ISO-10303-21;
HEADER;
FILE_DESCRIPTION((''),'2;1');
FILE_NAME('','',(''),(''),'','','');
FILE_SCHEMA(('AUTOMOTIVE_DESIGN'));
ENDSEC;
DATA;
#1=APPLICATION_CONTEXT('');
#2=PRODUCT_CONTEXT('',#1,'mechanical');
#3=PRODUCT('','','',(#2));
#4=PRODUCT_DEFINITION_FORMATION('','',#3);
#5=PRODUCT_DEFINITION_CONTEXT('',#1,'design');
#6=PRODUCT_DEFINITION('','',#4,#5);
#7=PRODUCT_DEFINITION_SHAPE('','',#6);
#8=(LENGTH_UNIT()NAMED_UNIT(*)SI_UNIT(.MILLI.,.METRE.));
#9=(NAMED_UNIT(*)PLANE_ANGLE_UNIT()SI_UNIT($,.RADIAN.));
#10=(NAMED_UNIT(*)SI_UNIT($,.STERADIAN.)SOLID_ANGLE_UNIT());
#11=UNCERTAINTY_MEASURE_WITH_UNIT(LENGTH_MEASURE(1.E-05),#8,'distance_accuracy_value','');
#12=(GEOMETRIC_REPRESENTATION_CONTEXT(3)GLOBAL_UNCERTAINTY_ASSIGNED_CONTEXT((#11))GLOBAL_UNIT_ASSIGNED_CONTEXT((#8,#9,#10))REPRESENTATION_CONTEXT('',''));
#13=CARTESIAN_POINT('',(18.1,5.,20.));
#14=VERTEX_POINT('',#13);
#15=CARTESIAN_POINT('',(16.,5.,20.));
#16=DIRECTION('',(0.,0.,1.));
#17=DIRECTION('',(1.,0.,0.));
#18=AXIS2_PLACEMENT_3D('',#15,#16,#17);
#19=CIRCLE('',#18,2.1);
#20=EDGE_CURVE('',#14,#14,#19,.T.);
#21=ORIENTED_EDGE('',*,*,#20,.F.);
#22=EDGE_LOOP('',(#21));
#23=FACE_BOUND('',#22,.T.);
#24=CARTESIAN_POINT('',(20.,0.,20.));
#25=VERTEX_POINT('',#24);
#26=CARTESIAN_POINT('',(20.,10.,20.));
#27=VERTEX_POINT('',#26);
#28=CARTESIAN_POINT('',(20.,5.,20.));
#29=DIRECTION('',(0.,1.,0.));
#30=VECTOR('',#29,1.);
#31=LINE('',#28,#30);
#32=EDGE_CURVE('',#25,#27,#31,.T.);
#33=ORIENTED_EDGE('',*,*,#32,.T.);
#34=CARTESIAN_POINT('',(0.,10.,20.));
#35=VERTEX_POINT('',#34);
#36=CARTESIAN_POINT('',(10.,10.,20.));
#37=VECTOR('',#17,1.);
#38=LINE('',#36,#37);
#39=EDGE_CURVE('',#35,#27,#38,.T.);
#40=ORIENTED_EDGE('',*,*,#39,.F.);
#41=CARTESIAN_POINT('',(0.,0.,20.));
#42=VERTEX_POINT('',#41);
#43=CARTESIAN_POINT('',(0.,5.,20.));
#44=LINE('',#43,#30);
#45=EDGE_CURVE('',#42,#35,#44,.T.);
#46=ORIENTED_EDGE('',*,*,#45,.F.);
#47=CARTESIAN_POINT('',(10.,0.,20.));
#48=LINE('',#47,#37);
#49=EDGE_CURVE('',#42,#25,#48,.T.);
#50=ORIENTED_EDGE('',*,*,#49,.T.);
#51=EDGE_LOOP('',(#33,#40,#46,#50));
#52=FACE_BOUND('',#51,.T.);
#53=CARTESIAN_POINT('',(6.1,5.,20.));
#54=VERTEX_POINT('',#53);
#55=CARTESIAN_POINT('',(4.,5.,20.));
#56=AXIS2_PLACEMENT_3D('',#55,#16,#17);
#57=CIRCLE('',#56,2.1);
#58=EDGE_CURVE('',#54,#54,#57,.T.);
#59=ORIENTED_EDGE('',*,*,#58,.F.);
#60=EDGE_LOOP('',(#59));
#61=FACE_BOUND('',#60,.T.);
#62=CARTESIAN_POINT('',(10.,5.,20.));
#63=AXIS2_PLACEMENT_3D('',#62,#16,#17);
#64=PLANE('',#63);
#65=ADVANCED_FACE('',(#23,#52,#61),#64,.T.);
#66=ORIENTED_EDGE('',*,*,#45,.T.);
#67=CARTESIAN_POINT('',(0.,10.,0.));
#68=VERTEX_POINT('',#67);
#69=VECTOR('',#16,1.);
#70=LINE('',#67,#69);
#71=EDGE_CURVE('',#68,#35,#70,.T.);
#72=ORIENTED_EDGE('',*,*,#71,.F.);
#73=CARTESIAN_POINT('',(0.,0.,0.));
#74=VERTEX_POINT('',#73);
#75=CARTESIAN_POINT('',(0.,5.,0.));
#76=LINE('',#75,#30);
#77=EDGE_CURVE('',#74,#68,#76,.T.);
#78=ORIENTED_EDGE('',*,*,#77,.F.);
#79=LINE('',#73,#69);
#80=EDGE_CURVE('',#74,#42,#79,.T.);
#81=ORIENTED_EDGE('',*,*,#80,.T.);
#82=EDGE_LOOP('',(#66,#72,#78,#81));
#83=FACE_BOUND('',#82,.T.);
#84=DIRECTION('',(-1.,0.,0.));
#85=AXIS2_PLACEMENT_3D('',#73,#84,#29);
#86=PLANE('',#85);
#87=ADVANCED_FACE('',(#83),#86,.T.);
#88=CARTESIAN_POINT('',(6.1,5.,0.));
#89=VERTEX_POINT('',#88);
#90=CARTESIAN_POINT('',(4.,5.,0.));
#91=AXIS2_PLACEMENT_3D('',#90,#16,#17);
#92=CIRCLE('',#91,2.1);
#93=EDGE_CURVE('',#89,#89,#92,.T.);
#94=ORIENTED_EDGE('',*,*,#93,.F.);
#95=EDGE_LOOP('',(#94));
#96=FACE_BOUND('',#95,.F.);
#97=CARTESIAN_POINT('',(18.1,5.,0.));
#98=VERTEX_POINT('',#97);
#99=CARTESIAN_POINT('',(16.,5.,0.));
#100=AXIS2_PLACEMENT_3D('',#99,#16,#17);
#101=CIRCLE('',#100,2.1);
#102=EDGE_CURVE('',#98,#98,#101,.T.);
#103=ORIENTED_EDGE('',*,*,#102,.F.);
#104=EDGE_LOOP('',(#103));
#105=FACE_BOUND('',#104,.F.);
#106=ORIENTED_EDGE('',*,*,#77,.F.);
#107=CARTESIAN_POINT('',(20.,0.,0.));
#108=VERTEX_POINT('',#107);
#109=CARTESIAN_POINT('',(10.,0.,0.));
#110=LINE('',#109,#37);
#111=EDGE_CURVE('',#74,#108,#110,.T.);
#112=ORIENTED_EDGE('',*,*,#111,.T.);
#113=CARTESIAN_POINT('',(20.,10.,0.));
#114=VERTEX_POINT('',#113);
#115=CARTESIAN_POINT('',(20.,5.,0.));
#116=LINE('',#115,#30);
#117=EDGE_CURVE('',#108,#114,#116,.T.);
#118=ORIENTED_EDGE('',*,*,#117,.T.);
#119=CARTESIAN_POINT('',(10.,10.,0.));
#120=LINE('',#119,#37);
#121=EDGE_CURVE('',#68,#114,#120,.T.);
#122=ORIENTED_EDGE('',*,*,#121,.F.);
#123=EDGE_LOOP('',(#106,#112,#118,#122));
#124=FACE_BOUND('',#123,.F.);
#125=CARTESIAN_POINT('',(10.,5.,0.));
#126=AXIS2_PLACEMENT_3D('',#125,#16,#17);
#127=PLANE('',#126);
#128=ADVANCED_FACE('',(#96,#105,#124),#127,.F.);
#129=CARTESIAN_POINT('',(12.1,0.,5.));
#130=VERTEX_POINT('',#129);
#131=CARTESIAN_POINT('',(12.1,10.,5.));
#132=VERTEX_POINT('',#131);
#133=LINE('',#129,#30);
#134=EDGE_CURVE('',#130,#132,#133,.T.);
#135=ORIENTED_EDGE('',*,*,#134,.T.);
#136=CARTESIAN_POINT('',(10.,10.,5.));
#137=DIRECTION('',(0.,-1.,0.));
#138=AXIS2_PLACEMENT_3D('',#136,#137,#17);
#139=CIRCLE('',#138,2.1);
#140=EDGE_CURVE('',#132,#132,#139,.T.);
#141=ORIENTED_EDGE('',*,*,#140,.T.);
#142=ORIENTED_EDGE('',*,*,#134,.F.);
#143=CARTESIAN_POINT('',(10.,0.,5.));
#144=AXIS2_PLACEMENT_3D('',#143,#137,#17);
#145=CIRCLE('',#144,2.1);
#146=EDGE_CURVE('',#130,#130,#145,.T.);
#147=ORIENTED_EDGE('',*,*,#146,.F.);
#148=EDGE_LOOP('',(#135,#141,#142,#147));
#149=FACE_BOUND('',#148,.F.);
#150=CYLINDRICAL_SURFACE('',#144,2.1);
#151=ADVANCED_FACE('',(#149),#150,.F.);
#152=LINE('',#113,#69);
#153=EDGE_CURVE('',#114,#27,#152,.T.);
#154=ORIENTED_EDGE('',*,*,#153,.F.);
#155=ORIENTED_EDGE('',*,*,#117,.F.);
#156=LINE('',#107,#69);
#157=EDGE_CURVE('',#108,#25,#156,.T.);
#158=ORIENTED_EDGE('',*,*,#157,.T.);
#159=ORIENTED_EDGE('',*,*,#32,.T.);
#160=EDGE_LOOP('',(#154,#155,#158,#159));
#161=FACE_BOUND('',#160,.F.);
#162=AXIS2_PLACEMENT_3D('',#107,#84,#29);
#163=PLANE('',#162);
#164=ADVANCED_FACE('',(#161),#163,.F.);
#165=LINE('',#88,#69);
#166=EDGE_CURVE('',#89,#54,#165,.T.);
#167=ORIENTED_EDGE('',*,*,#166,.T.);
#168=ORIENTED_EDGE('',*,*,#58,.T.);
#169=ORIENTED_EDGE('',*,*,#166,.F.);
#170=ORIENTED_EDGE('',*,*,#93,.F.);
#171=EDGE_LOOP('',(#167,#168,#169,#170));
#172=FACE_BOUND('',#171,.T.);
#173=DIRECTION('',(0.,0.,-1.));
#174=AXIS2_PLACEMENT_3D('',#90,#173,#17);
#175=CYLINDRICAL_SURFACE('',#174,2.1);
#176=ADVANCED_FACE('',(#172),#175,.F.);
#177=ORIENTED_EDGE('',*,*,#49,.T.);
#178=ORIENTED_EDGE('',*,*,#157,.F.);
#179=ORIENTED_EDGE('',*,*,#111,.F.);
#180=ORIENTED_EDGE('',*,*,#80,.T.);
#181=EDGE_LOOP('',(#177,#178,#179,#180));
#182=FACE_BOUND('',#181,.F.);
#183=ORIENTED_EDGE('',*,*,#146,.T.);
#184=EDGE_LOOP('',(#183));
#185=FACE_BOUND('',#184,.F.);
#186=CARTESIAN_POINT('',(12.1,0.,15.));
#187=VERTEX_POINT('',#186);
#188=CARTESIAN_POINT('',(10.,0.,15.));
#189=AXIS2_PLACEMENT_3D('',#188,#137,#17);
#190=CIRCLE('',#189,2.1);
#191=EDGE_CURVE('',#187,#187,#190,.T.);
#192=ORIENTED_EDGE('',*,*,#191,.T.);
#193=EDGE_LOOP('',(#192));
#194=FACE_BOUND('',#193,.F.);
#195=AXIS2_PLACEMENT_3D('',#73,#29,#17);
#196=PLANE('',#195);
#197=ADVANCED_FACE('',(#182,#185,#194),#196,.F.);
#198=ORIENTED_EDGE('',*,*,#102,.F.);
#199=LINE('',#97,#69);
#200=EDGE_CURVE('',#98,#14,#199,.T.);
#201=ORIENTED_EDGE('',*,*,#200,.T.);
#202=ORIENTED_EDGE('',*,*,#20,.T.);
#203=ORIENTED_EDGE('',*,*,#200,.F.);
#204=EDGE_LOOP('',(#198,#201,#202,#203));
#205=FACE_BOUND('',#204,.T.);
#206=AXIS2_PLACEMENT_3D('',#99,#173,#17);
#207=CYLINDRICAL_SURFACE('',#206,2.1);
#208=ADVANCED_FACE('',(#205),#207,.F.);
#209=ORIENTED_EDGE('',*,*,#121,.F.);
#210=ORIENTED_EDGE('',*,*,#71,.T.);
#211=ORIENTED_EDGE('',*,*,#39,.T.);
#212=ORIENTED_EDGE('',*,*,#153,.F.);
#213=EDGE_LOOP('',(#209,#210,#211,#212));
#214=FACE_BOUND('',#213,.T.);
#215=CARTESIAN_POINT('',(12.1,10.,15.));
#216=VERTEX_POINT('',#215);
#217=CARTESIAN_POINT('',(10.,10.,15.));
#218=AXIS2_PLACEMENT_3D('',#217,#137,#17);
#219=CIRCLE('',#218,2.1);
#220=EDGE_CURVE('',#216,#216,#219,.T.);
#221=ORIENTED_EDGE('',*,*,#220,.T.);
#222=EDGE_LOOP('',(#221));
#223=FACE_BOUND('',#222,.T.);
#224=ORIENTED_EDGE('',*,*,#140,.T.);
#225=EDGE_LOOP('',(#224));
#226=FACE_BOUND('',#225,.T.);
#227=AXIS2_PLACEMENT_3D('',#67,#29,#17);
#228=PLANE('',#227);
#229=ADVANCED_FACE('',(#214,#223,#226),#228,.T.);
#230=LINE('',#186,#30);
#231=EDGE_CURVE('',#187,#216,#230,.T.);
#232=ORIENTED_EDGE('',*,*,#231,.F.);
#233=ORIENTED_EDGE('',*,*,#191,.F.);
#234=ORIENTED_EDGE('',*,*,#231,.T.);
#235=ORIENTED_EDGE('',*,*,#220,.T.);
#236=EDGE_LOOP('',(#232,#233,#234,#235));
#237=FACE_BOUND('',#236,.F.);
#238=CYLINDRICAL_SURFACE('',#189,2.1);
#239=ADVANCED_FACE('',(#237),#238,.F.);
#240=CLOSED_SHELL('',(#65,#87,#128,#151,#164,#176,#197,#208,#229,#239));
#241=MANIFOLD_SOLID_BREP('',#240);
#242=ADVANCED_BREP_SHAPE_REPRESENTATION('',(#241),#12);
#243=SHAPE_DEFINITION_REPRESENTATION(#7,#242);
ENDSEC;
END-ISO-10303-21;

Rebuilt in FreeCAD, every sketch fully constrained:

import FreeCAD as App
import Part
import Sketcher

V = App.Vector


def add_polygon(sketch, points):
    """Adds a closed chain of lines whose ends are joined by coincident constraints."""
    first, n = sketch.GeometryCount, len(points)
    for a, b in zip(points, points[1:] + points[:1]):
        sketch.addGeometry(Part.LineSegment(App.Vector(*a, 0), App.Vector(*b, 0)), False)
    for i in range(n):
        sketch.addConstraint(Sketcher.Constraint("Coincident", first + i, 2, first + (i + 1) % n, 1))

doc = App.newDocument("Part")
body = doc.addObject("PartDesign::Body", "Body")

sketch1 = doc.addObject("Sketcher::SketchObject", "Sketch")
body.addObject(sketch1)
sketch1.AttachmentSupport = (doc.XY_Plane, [""])
sketch1.MapMode = "FlatFace"
add_polygon(sketch1, [(0, 10), (0, 0), (20, 0), (20, 10)])
sketch1.addGeometry(Part.Circle(V(4, 5, 0), V(0, 0, 1), 2.1), False)
sketch1.addGeometry(Part.Circle(V(16, 5, 0), V(0, 0, 1), 2.1), False)
sketch1.addConstraint(Sketcher.Constraint("Vertical", 0))
sketch1.addConstraint(Sketcher.Constraint("Horizontal", 1))
sketch1.addConstraint(Sketcher.Constraint("Vertical", 2))
sketch1.addConstraint(Sketcher.Constraint("Horizontal", 3))
sketch1.addConstraint(Sketcher.Constraint("Coincident", 0, 2, -1, 1))
sketch1.addConstraint(Sketcher.Constraint("Equal", 4, 5))
sketch1.addConstraint(Sketcher.Constraint("Horizontal", 4, 3, 5, 3))
sketch1.addConstraint(Sketcher.Constraint("Diameter", 4, 4.2))
sketch1.addConstraint(Sketcher.Constraint("DistanceX", 1, 1, 1, 2, 20.0))
sketch1.addConstraint(Sketcher.Constraint("DistanceY", 0, 2, 0, 1, 10.0))
sketch1.addConstraint(Sketcher.Constraint("DistanceX", -1, 1, 4, 3, 4.0))
sketch1.addConstraint(Sketcher.Constraint("DistanceY", -1, 1, 4, 3, 5.0))
sketch1.addConstraint(Sketcher.Constraint("DistanceX", -1, 1, 5, 3, 16.0))
pad1 = doc.addObject("PartDesign::Pad", "Pad")
body.addObject(pad1)
pad1.Profile = sketch1
pad1.Length = 20

sketch2 = doc.addObject("Sketcher::SketchObject", "Sketch001")
body.addObject(sketch2)
sketch2.AttachmentSupport = (doc.XZ_Plane, [""])
sketch2.MapMode = "FlatFace"
sketch2.addGeometry(Part.Circle(V(10, 15, 0), V(0, 0, 1), 2.1), False)
sketch2.addGeometry(Part.Circle(V(10, 5, 0), V(0, 0, 1), 2.1), False)
sketch2.addConstraint(Sketcher.Constraint("Equal", 0, 1))
sketch2.addConstraint(Sketcher.Constraint("Vertical", 0, 3, 1, 3))
sketch2.addConstraint(Sketcher.Constraint("Diameter", 0, 4.2))
sketch2.addConstraint(Sketcher.Constraint("DistanceX", -1, 1, 0, 3, 10.0))
sketch2.addConstraint(Sketcher.Constraint("DistanceY", -1, 1, 0, 3, 15.0))
sketch2.addConstraint(Sketcher.Constraint("DistanceY", -1, 1, 1, 3, 5.0))
pocket1 = doc.addObject("PartDesign::Pocket", "Pocket")
body.addObject(pocket1)
pocket1.Profile = sketch2
pocket1.Length = 30

doc.recompute()
